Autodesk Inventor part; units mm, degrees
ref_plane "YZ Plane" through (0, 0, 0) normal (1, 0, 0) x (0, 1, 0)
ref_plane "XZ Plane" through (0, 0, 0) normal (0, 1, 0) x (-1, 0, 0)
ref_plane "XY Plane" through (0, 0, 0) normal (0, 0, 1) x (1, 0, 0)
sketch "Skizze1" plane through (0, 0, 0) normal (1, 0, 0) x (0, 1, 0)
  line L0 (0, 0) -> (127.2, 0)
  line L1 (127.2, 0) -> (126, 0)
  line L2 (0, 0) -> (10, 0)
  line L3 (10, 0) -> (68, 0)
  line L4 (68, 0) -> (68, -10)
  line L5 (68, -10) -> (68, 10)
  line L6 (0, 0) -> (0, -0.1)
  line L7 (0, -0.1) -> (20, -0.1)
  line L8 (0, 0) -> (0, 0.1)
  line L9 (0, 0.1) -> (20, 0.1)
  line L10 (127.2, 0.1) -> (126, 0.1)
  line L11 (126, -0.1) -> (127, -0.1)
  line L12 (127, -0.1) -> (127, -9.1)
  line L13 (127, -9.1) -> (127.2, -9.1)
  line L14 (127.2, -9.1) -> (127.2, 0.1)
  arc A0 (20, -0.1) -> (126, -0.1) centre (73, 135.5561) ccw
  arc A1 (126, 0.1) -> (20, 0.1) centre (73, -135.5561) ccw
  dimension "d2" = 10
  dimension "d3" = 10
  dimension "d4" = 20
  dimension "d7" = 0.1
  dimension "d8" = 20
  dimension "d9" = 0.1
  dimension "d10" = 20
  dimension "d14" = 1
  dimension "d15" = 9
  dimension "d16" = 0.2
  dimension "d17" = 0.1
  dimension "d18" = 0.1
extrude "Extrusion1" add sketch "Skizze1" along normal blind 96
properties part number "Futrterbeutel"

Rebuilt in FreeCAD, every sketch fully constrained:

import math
import FreeCAD as App
import Part
import Sketcher

V = App.Vector
Q = App.Units.Quantity

doc = App.newDocument("Part")
body = doc.addObject("PartDesign::Body", "Body")

# Sketch on YZ plane
sketch1 = body.newObject("Sketcher::SketchObject", "Sketch")
sketch1.AttachmentSupport = (doc.getObject("YZ_Plane"), [""])
sketch1.MapMode = "FlatFace"
sketch1.addGeometry([
    Part.LineSegment(V(0, 0.1, 0), V(0, -0.1, 0)),  # 0
    Part.LineSegment(V(0, -0.1, 0), V(20, -0.1, 0)),  # 1
    Part.ArcOfCircle(Part.Circle(V(73, 135.56, 0), V(0, 0, 1), 145.64), math.radians(-111), math.radians(-69)),  # 2
    Part.LineSegment(V(126, -0.1, 0), V(127, -0.1, 0)),  # 3
    Part.LineSegment(V(127, -0.1, 0), V(127, -9.1, 0)),  # 4
    Part.LineSegment(V(127, -9.1, 0), V(127.2, -9.1, 0)),  # 5
    Part.LineSegment(V(127.2, -9.1, 0), V(127.2, 0.1, 0)),  # 6
    Part.LineSegment(V(127.2, 0.1, 0), V(126, 0.1, 0)),  # 7
    Part.ArcOfCircle(Part.Circle(V(73, -135.56, 0), V(0, 0, 1), 145.64), math.radians(69), math.radians(111)),  # 8
    Part.LineSegment(V(20, 0.1, 0), V(0, 0.1, 0)),  # 9
], False)
sketch1.addConstraint([
    Sketcher.Constraint("Coincident", 0, 2, 1, 1),
    Sketcher.Constraint("Coincident", 1, 2, 2, 1),
    Sketcher.Constraint("Coincident", 2, 2, 3, 1),
    Sketcher.Constraint("Coincident", 3, 2, 4, 1),
    Sketcher.Constraint("Coincident", 4, 2, 5, 1),
    Sketcher.Constraint("Coincident", 5, 2, 6, 1),
    Sketcher.Constraint("Coincident", 6, 2, 7, 1),
    Sketcher.Constraint("Coincident", 7, 2, 8, 1),
    Sketcher.Constraint("Coincident", 8, 2, 9, 1),
    Sketcher.Constraint("Coincident", 9, 2, 0, 1),
    Sketcher.Constraint("Vertical", 0),
    Sketcher.Constraint("Horizontal", 1),
    Sketcher.Constraint("Horizontal", 3),
    Sketcher.Constraint("Vertical", 4),
    Sketcher.Constraint("Horizontal", 5),
    Sketcher.Constraint("Vertical", 6),
    Sketcher.Constraint("Horizontal", 7),
    Sketcher.Constraint("Horizontal", 9),
    Sketcher.Constraint("Equal", 2, 8),
    Sketcher.Constraint("Symmetric", 0, 2, 9, 2, -1, 1),
    Sketcher.Constraint("Symmetric", 2, 3, 8, 3, -1),
    Sketcher.Constraint("Horizontal", 1, 2, 2, 2),
    Sketcher.Constraint("Horizontal", 7, 2, 8, 2),
    Sketcher.Constraint("Equal", 5, 0),
    Sketcher.Constraint("DistanceX", 1, 1, 1, 2, Q("20 mm")),
    Sketcher.Constraint("DistanceX", 3, 1, 3, 2, Q("1 mm")),
    Sketcher.Constraint("DistanceY", 4, 2, 4, 1, Q("9 mm")),
    Sketcher.Constraint("DistanceX", 5, 1, 5, 2, Q("0.2 mm")),
    Sketcher.Constraint("DistanceX", -1, 1, 2, 3, Q("73 mm")),
    Sketcher.Constraint("Radius", 2, Q("145.642 mm")),
])
pad1 = body.newObject("PartDesign::Pad", "Pad")
pad1.Profile = sketch1
pad1.Length = 96

doc.recompute()
